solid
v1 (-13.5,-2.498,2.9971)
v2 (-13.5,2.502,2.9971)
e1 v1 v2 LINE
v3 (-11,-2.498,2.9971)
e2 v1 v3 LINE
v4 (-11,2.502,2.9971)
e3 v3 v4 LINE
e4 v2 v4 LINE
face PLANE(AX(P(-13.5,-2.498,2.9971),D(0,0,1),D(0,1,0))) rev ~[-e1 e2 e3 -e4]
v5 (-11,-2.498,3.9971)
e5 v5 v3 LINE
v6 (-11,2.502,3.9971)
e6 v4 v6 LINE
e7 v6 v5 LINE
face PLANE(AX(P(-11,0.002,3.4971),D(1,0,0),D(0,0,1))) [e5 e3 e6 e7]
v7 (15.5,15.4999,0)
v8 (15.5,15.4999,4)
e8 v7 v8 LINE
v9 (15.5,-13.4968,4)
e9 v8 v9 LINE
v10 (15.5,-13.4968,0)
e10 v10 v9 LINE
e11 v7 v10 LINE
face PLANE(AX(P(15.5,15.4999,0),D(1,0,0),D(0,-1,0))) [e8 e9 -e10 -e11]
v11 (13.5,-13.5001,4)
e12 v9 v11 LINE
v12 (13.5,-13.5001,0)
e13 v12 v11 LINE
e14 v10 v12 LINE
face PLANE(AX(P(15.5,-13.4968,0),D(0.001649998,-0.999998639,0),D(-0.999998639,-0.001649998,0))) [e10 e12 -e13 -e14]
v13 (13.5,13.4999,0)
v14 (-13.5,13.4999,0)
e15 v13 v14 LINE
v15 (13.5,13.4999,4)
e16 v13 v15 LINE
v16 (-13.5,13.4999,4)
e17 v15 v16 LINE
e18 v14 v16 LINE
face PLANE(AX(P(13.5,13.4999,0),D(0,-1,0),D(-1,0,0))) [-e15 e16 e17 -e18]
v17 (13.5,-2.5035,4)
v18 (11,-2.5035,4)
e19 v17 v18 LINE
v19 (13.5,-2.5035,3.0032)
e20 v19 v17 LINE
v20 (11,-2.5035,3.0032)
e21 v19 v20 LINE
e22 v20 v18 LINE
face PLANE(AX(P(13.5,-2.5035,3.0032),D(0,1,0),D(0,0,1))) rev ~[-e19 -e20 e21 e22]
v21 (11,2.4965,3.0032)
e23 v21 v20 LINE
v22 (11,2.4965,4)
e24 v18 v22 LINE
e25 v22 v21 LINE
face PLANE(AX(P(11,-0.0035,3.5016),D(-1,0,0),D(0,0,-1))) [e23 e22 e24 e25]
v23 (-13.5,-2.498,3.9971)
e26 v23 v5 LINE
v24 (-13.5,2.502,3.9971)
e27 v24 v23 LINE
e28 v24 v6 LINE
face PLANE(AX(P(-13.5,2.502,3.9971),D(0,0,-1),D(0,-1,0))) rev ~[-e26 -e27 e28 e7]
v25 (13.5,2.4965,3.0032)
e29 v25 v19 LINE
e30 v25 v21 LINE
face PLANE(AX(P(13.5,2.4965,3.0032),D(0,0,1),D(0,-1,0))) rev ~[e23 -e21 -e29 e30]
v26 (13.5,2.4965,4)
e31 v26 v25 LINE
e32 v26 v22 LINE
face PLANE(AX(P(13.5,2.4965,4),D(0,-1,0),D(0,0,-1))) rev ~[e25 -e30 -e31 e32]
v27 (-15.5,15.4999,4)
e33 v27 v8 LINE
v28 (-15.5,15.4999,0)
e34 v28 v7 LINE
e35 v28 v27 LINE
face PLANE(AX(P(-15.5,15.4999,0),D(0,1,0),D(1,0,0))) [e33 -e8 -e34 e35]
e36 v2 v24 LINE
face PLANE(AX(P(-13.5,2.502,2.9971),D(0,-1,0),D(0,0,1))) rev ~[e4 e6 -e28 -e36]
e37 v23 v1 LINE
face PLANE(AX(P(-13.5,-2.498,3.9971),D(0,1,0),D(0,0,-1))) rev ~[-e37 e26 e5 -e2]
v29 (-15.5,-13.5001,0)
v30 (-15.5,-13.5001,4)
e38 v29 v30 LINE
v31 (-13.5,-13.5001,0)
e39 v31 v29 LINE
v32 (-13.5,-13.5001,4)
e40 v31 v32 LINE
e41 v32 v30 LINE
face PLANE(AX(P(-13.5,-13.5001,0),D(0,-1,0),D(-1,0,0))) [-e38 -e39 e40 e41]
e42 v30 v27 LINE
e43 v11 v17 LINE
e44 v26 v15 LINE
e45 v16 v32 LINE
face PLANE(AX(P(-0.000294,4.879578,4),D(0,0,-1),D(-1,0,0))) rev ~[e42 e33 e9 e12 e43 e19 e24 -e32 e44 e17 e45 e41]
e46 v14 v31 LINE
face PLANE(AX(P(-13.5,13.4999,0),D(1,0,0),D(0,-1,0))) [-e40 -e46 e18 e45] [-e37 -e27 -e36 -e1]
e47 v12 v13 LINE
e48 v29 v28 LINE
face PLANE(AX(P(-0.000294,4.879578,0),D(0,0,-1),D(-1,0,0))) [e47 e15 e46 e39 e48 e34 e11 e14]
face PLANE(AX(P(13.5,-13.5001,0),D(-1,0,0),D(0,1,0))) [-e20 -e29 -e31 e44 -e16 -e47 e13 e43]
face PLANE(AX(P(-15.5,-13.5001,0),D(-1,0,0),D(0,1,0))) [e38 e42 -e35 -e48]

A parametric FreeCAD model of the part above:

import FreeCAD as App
import Part
import Sketcher
Q = App.Units.Quantity

doc = App.newDocument("Part")
params = doc.addObject("Spreadsheet::Sheet", "Params")
for row, (alias, value) in enumerate([
    ("sketch1_width", "31 mm"),
    ("sketch1_width2", "2 mm"),
    ("sketch1_width3", "27 mm"),
    ("sketch1_height", "29 mm"),
    ("pad1_length", "4 mm"),
    ("sketch2_width", "5 mm"),
    ("sketch2_height", "1 mm"),
    ("pad2_length", "2.5 mm"),
    ("sketch3_width", "5 mm"),
    ("pad3_length", "2.5 mm"),
], start=1):
    params.set(f"A{row}", alias)
    params.set(f"B{row}", "=" + value)
    params.setAlias(f"B{row}", alias)

body = doc.addObject("PartDesign::Body", "Body")

# Sketch on XY plane
sketch1 = body.newObject("Sketcher::SketchObject", "Sketch")
sketch1.AttachmentSupport = (doc.getObject("XY_Plane"), [""])
sketch1.MapMode = "FlatFace"
sketch1.addGeometry([
    Part.LineSegment(App.Vector(13.5, -13.5, 0), App.Vector(15.5, -13.5, 0)),  # 0
    Part.LineSegment(App.Vector(15.5, -13.5, 0), App.Vector(15.5, 15.5, 0)),  # 1
    Part.LineSegment(App.Vector(15.5, 15.5, 0), App.Vector(-15.5, 15.5, 0)),  # 2
    Part.LineSegment(App.Vector(-15.5, 15.5, 0), App.Vector(-15.5, -13.5, 0)),  # 3
    Part.LineSegment(App.Vector(-15.5, -13.5, 0), App.Vector(-13.5, -13.5, 0)),  # 4
    Part.LineSegment(App.Vector(-13.5, -13.5, 0), App.Vector(-13.5, 13.5, 0)),  # 5
    Part.LineSegment(App.Vector(-13.5, 13.5, 0), App.Vector(13.5, 13.5, 0)),  # 6
    Part.LineSegment(App.Vector(13.5, 13.5, 0), App.Vector(13.5, -13.5, 0)),  # 7
], False)
sketch1.addConstraint([
    Sketcher.Constraint("Coincident", 0, 2, 1, 1),
    Sketcher.Constraint("Coincident", 1, 2, 2, 1),
    Sketcher.Constraint("Coincident", 2, 2, 3, 1),
    Sketcher.Constraint("Coincident", 3, 2, 4, 1),
    Sketcher.Constraint("Coincident", 4, 2, 5, 1),
    Sketcher.Constraint("Coincident", 5, 2, 6, 1),
    Sketcher.Constraint("Coincident", 6, 2, 7, 1),
    Sketcher.Constraint("Coincident", 7, 2, 0, 1),
    Sketcher.Constraint("Vertical", 1),
    Sketcher.Constraint("Horizontal", 2),
    Sketcher.Constraint("Vertical", 3),
    Sketcher.Constraint("Horizontal", 4),
    Sketcher.Constraint("Vertical", 5),
    Sketcher.Constraint("Horizontal", 6),
    Sketcher.Constraint("Vertical", 7),
    Sketcher.Constraint("Symmetric", 4, 2, 6, 2, -1, 1),
    Sketcher.Constraint("Horizontal", 4, 2, 7, 2),
    Sketcher.Constraint("Equal", 6, 5),
    Sketcher.Constraint("DistanceX", 2, 2, 2, 1, Q("31 mm")),
    Sketcher.Constraint("DistanceX", 4, 1, 4, 2, Q("2 mm")),
    Sketcher.Constraint("DistanceX", 6, 1, 6, 2, Q("27 mm")),
    Sketcher.Constraint("DistanceY", 3, 2, 3, 1, Q("29 mm")),
    Sketcher.Constraint("DistanceY", 1, 1, 1, 2, Q("28.9967 mm")),
])
sketch1.setExpression("Constraints[18]", "Params.sketch1_width")
sketch1.setExpression("Constraints[19]", "Params.sketch1_width2")
sketch1.setExpression("Constraints[20]", "Params.sketch1_width3")
sketch1.setExpression("Constraints[21]", "Params.sketch1_height")
pad1 = body.newObject("PartDesign::Pad", "Pad")
pad1.Profile = sketch1
pad1.setExpression("Length", "Params.pad1_length")

# Sketch on YZ plane
sketch2 = body.newObject("Sketcher::SketchObject", "Sketch001")
sketch2.AttachmentSupport = (doc.getObject("YZ_Plane"), [""])
sketch2.MapMode = "FlatFace"
sketch2.AttachmentOffset = App.Placement(App.Vector(0, 0, -13.5), App.Rotation())
sketch2.addGeometry([
    Part.LineSegment(App.Vector(2.5, 4, 0), App.Vector(-2.5, 4, 0)),
    Part.LineSegment(App.Vector(-2.5, 4, 0), App.Vector(-2.5, 3, 0)),
    Part.LineSegment(App.Vector(-2.5, 3, 0), App.Vector(2.5, 3, 0)),
    Part.LineSegment(App.Vector(2.5, 3, 0), App.Vector(2.5, 4, 0)),
], False)
sketch2.addConstraint([
    Sketcher.Constraint("Coincident", 0, 2, 1, 1),
    Sketcher.Constraint("Coincident", 1, 2, 2, 1),
    Sketcher.Constraint("Coincident", 2, 2, 3, 1),
    Sketcher.Constraint("Coincident", 3, 2, 0, 1),
    Sketcher.Constraint("Horizontal", 0),
    Sketcher.Constraint("Vertical", 1),
    Sketcher.Constraint("Horizontal", 2),
    Sketcher.Constraint("Vertical", 3),
    Sketcher.Constraint("DistanceX", 0, 2, 0, 1, Q("5 mm")),
    Sketcher.Constraint("DistanceY", 1, 2, 1, 1, Q("1 mm")),
    Sketcher.Constraint("DistanceX", 0, 2, -1, 1, Q("2.498 mm")),
    Sketcher.Constraint("DistanceY", -1, 1, 0, 2, Q("3.997 mm")),
])
sketch2.setExpression("Constraints[8]", "Params.sketch2_width")
sketch2.setExpression("Constraints[9]", "Params.sketch2_height")
pad2 = body.newObject("PartDesign::Pad", "Pad001")
pad2.Profile = sketch2
pad2.setExpression("Length", "Params.pad2_length")

# Sketch on YZ plane
sketch3 = body.newObject("Sketcher::SketchObject", "Sketch002")
sketch3.AttachmentSupport = (doc.getObject("YZ_Plane"), [""])
sketch3.MapMode = "FlatFace"
sketch3.AttachmentOffset = App.Placement(App.Vector(0, 0, 13.5), App.Rotation())
sketch3.addGeometry([
    Part.LineSegment(App.Vector(-2.5, 3, 0), App.Vector(-2.5, 4, 0)),
    Part.LineSegment(App.Vector(-2.5, 4, 0), App.Vector(2.5, 4, 0)),
    Part.LineSegment(App.Vector(2.5, 4, 0), App.Vector(2.5, 3, 0)),
    Part.LineSegment(App.Vector(2.5, 3, 0), App.Vector(-2.5, 3, 0)),
], False)
sketch3.addConstraint([
    Sketcher.Constraint("Coincident", 0, 2, 1, 1),
    Sketcher.Constraint("Coincident", 1, 2, 2, 1),
    Sketcher.Constraint("Coincident", 2, 2, 3, 1),
    Sketcher.Constraint("Coincident", 3, 2, 0, 1),
    Sketcher.Constraint("Vertical", 0),
    Sketcher.Constraint("Horizontal", 1),
    Sketcher.Constraint("Vertical", 2),
    Sketcher.Constraint("Horizontal", 3),
    Sketcher.Constraint("DistanceX", 1, 1, 1, 2, Q("5 mm")),
    Sketcher.Constraint("DistanceY", -1, 1, 0, 2, Q("4 mm")),
    Sketcher.Constraint("DistanceY", 0, 1, 0, 2, Q("0.9968 mm")),
    Sketcher.Constraint("DistanceX", 0, 2, -1, 1, Q("2.5035 mm")),
])
sketch3.setExpression("Constraints[8]", "Params.sketch3_width")
pad3 = body.newObject("PartDesign::Pad", "Pad002")
pad3.Profile = sketch3
pad3.setExpression("Length", "Params.pad3_length")
pad3.Reversed = True

doc.recompute()
